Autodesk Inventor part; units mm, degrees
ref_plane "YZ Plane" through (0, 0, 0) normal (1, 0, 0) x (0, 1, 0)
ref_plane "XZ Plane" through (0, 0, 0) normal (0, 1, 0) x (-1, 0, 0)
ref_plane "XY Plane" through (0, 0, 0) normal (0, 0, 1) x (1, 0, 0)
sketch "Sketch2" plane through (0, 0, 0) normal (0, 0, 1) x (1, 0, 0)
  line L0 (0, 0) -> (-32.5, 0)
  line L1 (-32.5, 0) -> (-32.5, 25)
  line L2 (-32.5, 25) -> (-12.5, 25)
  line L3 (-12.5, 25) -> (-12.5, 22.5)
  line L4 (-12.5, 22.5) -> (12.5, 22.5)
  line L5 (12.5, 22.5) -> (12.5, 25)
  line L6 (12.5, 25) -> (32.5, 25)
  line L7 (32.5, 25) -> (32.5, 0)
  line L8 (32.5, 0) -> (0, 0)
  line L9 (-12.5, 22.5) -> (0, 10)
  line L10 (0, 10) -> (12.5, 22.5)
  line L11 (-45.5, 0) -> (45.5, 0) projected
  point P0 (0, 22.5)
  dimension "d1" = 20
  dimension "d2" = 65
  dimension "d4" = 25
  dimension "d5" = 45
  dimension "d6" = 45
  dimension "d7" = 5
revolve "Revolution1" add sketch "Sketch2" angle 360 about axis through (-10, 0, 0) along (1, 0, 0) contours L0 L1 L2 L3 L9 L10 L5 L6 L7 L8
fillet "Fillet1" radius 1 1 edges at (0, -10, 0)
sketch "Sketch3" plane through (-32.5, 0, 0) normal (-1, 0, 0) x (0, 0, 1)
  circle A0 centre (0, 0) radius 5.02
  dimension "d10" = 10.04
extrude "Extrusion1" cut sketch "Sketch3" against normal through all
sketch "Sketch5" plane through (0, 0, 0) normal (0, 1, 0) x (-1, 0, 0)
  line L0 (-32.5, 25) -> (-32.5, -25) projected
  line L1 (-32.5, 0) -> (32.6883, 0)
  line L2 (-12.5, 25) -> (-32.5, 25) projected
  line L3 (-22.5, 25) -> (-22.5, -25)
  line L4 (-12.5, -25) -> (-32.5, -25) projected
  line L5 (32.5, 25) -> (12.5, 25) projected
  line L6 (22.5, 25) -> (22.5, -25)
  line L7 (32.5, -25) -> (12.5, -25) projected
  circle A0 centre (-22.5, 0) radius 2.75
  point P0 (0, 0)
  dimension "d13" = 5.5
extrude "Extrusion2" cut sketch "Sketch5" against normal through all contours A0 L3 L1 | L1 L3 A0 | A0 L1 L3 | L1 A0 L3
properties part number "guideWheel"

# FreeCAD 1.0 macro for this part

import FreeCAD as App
import Part
import Sketcher
Q = App.Units.Quantity


def edges_at(feature, points):
    """Names of the edges that pass closest to the given points."""
    edges = feature.Shape.Edges
    near = lambda p: min(range(len(edges)), key=lambda i: edges[i].distToShape(Part.Vertex(*p))[0])
    return sorted({f"Edge{near(p) + 1}" for p in points})


def add_polygon(sketch, points):
    """Adds a closed chain of lines whose ends are joined by coincident constraints."""
    first, n = sketch.GeometryCount, len(points)
    for a, b in zip(points, points[1:] + points[:1]):
        sketch.addGeometry(Part.LineSegment(App.Vector(*a, 0), App.Vector(*b, 0)), False)
    for i in range(n):
        sketch.addConstraint(Sketcher.Constraint("Coincident", first + i, 2, first + (i + 1) % n, 1))

doc = App.newDocument("Part")
body = doc.addObject("PartDesign::Body", "Body")

# Sketch on XY plane
sketch1 = body.newObject("Sketcher::SketchObject", "Sketch")
sketch1.AttachmentSupport = (doc.getObject("XY_Plane"), [""])
sketch1.MapMode = "FlatFace"
add_polygon(sketch1, [(-32.5, 0), (32.5, 0), (32.5, 25), (12.5, 25), (12.5, 22.5), (0, 10), (-12.5, 22.5), (-12.5, 25), (-32.5, 25)])  # lines 0-8
sketch1.addConstraint([
    Sketcher.Constraint("Horizontal", 0),
    Sketcher.Constraint("Vertical", 1),
    Sketcher.Constraint("Horizontal", 2),
    Sketcher.Constraint("Vertical", 3),
    Sketcher.Constraint("Vertical", 6),
    Sketcher.Constraint("Horizontal", 7),
    Sketcher.Constraint("Vertical", 8),
    Sketcher.Constraint("Symmetric", 0, 2, 8, 2, -1, 1),
    Sketcher.Constraint("Symmetric", 3, 2, 5, 2, -2),
    Sketcher.Constraint("PointOnObject", 4, 2, -2),
    Sketcher.Constraint("Perpendicular", 4, 5),
    Sketcher.Constraint("Horizontal", 2, 2, 6, 2),
    Sketcher.Constraint("DistanceX", 0, 1, 0, 2, Q("65 mm")),
    Sketcher.Constraint("DistanceX", 2, 2, 2, 1, Q("20 mm")),
    Sketcher.Constraint("DistanceY", 1, 1, 1, 2, Q("25 mm")),
    Sketcher.Constraint("DistanceY", 3, 2, 3, 1, Q("2.5 mm")),
])
revolution = body.newObject("PartDesign::Revolution", "Revolution")
revolution.Profile = sketch1
revolution.ReferenceAxis = (sketch1, ["H_Axis"])
revolution.Angle = 360
doc.recompute()

fillet = body.newObject("PartDesign::Fillet", "Fillet")
fillet.Base = (revolution, edges_at(revolution, [(0, -10, 0)]))
fillet.Radius = 1

# Sketch on YZ plane
sketch2 = body.newObject("Sketcher::SketchObject", "Sketch001")
sketch2.AttachmentSupport = (doc.getObject("YZ_Plane"), [""])
sketch2.MapMode = "FlatFace"
sketch2.AttachmentOffset = App.Placement(App.Vector(0, 0, -32.5), App.Rotation())
sketch2.addGeometry(Part.Circle(App.Vector(0, 0, 0), App.Vector(0, 0, 1), 5.02), False)
sketch2.addConstraint([
    Sketcher.Constraint("Coincident", 0, 3, -1, 1),
    Sketcher.Constraint("Diameter", 0, Q("10.04 mm")),
])
pocket1 = body.newObject("PartDesign::Pocket", "Pocket")
pocket1.Profile = sketch2
pocket1.Type = "ThroughAll"
pocket1.Reversed = True

# Sketch on XZ plane
sketch3 = body.newObject("Sketcher::SketchObject", "Sketch002")
sketch3.AttachmentSupport = (doc.getObject("XZ_Plane"), [""])
sketch3.MapMode = "FlatFace"
sketch3.addGeometry(Part.Circle(App.Vector(22.5, 0, 0), App.Vector(0, 0, 1), 2.75), False)
sketch3.addConstraint([
    Sketcher.Constraint("PointOnObject", 0, 3, -1),
    Sketcher.Constraint("Diameter", 0, Q("5.5 mm")),
    Sketcher.Constraint("DistanceX", -1, 1, 0, 3, Q("22.5 mm")),
])
pocket2 = body.newObject("PartDesign::Pocket", "Pocket001")
pocket2.Profile = sketch3
pocket2.Type = "ThroughAll"
pocket2.Reversed = True

doc.recompute()
